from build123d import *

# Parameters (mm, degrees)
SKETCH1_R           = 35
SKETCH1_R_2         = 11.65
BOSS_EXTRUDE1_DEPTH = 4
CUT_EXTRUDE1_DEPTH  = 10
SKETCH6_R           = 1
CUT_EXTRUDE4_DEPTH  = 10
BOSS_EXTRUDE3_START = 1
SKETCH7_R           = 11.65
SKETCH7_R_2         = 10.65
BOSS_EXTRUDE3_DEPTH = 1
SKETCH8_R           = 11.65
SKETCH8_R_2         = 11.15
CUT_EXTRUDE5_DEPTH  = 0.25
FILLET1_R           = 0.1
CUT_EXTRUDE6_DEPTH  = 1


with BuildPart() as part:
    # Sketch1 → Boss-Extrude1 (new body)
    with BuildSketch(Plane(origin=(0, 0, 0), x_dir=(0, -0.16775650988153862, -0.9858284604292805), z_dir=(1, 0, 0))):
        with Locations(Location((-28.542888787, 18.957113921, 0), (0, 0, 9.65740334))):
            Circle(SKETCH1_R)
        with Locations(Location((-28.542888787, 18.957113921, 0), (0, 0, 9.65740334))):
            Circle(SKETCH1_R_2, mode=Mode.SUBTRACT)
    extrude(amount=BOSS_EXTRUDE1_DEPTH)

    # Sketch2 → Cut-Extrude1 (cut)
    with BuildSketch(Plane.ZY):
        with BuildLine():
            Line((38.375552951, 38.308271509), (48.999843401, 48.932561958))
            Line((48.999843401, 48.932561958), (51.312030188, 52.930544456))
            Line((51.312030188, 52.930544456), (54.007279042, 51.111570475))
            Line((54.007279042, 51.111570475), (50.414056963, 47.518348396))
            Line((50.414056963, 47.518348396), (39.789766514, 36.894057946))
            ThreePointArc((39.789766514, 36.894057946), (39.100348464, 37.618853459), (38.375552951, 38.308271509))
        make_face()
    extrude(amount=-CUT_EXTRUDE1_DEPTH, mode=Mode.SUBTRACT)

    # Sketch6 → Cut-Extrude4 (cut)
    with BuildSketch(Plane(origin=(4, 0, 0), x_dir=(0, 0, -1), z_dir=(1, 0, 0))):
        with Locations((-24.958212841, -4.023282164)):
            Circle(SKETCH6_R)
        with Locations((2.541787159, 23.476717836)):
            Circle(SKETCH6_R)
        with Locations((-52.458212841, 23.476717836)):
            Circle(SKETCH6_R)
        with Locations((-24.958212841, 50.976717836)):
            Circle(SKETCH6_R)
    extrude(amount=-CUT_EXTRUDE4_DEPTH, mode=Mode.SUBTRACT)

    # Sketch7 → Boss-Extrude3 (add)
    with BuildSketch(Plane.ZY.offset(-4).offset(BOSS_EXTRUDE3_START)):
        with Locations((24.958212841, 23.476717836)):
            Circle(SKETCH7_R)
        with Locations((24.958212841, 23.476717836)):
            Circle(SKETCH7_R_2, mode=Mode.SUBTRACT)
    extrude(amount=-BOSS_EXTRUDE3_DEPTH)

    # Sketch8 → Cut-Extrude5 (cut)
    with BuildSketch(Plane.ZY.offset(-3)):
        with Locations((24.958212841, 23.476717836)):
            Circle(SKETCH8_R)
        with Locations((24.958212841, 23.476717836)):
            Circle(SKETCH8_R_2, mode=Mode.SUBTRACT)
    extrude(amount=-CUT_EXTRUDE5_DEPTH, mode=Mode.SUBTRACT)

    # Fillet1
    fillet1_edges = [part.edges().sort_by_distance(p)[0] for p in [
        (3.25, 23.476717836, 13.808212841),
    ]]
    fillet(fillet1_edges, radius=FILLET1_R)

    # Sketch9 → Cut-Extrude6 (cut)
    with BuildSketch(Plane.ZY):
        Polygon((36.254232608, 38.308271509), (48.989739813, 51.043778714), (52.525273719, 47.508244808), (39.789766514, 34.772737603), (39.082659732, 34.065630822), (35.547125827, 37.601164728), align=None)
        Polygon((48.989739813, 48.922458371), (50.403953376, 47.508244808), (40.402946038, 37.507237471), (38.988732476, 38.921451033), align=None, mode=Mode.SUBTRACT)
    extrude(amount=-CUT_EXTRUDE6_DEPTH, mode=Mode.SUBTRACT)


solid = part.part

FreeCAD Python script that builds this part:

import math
import FreeCAD as App
import Part
import Sketcher

V = App.Vector
Q = App.Units.Quantity


def edges_at(feature, points):
    """Names of the edges that pass closest to the given points."""
    edges = feature.Shape.Edges
    near = lambda p: min(range(len(edges)), key=lambda i: edges[i].distToShape(Part.Vertex(*p))[0])
    return sorted({f"Edge{near(p) + 1}" for p in points})

doc = App.newDocument("Part")
body = doc.addObject("PartDesign::Body", "Body")

# Sketch on YZ plane
sketch1 = body.newObject("Sketcher::SketchObject", "Sketch")
sketch1.AttachmentSupport = (doc.getObject("YZ_Plane"), [""])
sketch1.MapMode = "FlatFace"
sketch1.addGeometry([
    Part.Circle(V(23, 25, 0), V(0, 0, 1), 35),
    Part.Circle(V(23, 25, 0), V(0, 0, 1), 12),
], False)
sketch1.addConstraint([
    Sketcher.Constraint("Coincident", 1, 3, 0, 3),
    Sketcher.Constraint("Diameter", 0, Q("70 mm")),
    Sketcher.Constraint("Diameter", 1, Q("23.3 mm")),
    Sketcher.Constraint("DistanceX", -1, 1, 0, 3, Q("23.476718 mm")),
    Sketcher.Constraint("DistanceY", -1, 1, 0, 3, Q("24.958213 mm")),
])
pad1 = body.newObject("PartDesign::Pad", "Pad")
pad1.Profile = sketch1
pad1.Length = 4

# Sketch on YZ plane
sketch2 = body.newObject("Sketcher::SketchObject", "Sketch001")
sketch2.AttachmentSupport = (doc.getObject("YZ_Plane"), [""])
sketch2.MapMode = "FlatFace"
sketch2.addGeometry([
    Part.LineSegment(V(48.9, 49, 0), V(38.3, 38.4, 0)),  # 0
    Part.ArcOfCircle(Part.Circle(V(23.5, 25, 0), V(0, 0, 1), 20), math.radians(42.13), math.radians(47.87)),  # 1
    Part.LineSegment(V(36.9, 39.8, 0), V(47.5, 50.4, 0)),  # 2
    Part.LineSegment(V(47.5, 50.4, 0), V(51.1, 54, 0)),  # 3
    Part.LineSegment(V(51.1, 54, 0), V(52.9, 51.3, 0)),  # 4
    Part.LineSegment(V(52.9, 51.3, 0), V(48.9, 49, 0)),  # 5
], False)
sketch2.addConstraint([
    Sketcher.Constraint("Coincident", 0, 2, 1, 1),
    Sketcher.Constraint("Coincident", 1, 2, 2, 1),
    Sketcher.Constraint("Coincident", 2, 2, 3, 1),
    Sketcher.Constraint("Coincident", 3, 2, 4, 1),
    Sketcher.Constraint("Coincident", 4, 2, 5, 1),
    Sketcher.Constraint("Coincident", 5, 2, 0, 1),
    Sketcher.Constraint("Parallel", 0, 2),
    Sketcher.Constraint("Parallel", 2, 3),
    Sketcher.Constraint("Equal", 0, 2),
    Sketcher.Constraint("Radius", 1, Q("20 mm")),
    Sketcher.Constraint("Angle", 0, Q("-135 deg")),
    Sketcher.Constraint("DistanceX", 0, 2, 3, 2, Q("12.803299 mm")),
    Sketcher.Constraint("Distance", 4, Q("3.25162 mm")),
    Sketcher.Constraint("Distance", 5, Q("4.618449 mm")),
    Sketcher.Constraint("DistanceX", -1, 1, 0, 2, Q("38.308272 mm")),
    Sketcher.Constraint("DistanceX", -1, 1, 2, 2, Q("47.518348 mm")),
    Sketcher.Constraint("DistanceY", -1, 1, 3, 2, Q("54.007279 mm")),
    Sketcher.Constraint("DistanceY", -1, 1, 4, 2, Q("51.31203 mm")),
    Sketcher.Constraint("DistanceX", -1, 1, 5, 2, Q("48.932562 mm")),
])
pocket1 = body.newObject("PartDesign::Pocket", "Pocket")
pocket1.Profile = sketch2
pocket1.Length = 10
pocket1.Reversed = True

# Sketch on YZ plane
sketch3 = body.newObject("Sketcher::SketchObject", "Sketch002")
sketch3.AttachmentSupport = (doc.getObject("YZ_Plane"), [""])
sketch3.MapMode = "FlatFace"
sketch3.AttachmentOffset = App.Placement(V(0, 0, 4), App.Rotation())
sketch3.addGeometry([
    Part.Circle(V(-4, 25, 0), V(0, 0, 1), 1),
    Part.Circle(V(23.5, -2.5, 0), V(0, 0, 1), 1),
    Part.Circle(V(23.5, 52.5, 0), V(0, 0, 1), 1),
    Part.Circle(V(51, 25, 0), V(0, 0, 1), 1),
], False)
sketch3.addConstraint([
    Sketcher.Constraint("Equal", 0, 1),
    Sketcher.Constraint("Equal", 1, 2),
    Sketcher.Constraint("Equal", 2, 3),
    Sketcher.Constraint("Horizontal", 0, 3, 3, 3),
    Sketcher.Constraint("Vertical", 1, 3, 2, 3),
    Sketcher.Constraint("Diameter", 0, Q("2 mm")),
    Sketcher.Constraint("DistanceY", 1, 3, 2, 3, Q("55 mm")),
    Sketcher.Constraint("DistanceX", 0, 3, 3, 3, Q("55 mm")),
    Sketcher.Constraint("DistanceX", 0, 3, 1, 3, Q("27.5 mm")),
    Sketcher.Constraint("DistanceY", 1, 3, 0, 3, Q("27.5 mm")),
    Sketcher.Constraint("DistanceX", 0, 3, -1, 1, Q("4.023282 mm")),
    Sketcher.Constraint("DistanceY", -1, 1, 0, 3, Q("24.958213 mm")),
])
pocket2 = body.newObject("PartDesign::Pocket", "Pocket001")
pocket2.Profile = sketch3
pocket2.Length = 10

# Sketch on YZ plane
sketch4 = body.newObject("Sketcher::SketchObject", "Sketch003")
sketch4.AttachmentSupport = (doc.getObject("YZ_Plane"), [""])
sketch4.MapMode = "FlatFace"
sketch4.AttachmentOffset = App.Placement(V(0, 0, 3), App.Rotation())
sketch4.addGeometry([
    Part.Circle(V(23, 25, 0), V(0, 0, 1), 12),
    Part.Circle(V(23, 25, 0), V(0, 0, 1), 11),
], False)
sketch4.addConstraint([
    Sketcher.Constraint("Coincident", 1, 3, 0, 3),
    Sketcher.Constraint("Diameter", 0, Q("23.3 mm")),
    Sketcher.Constraint("Diameter", 1, Q("21.3 mm")),
    Sketcher.Constraint("DistanceX", -1, 1, 0, 3, Q("23.476718 mm")),
    Sketcher.Constraint("DistanceY", -1, 1, 0, 3, Q("24.958213 mm")),
])
pad2 = body.newObject("PartDesign::Pad", "Pad001")
pad2.Profile = sketch4
pad2.Length = 1

# Sketch on YZ plane
sketch5 = body.newObject("Sketcher::SketchObject", "Sketch004")
sketch5.AttachmentSupport = (doc.getObject("YZ_Plane"), [""])
sketch5.MapMode = "FlatFace"
sketch5.AttachmentOffset = App.Placement(V(0, 0, 3), App.Rotation())
sketch5.addGeometry([
    Part.Circle(V(23, 25, 0), V(0, 0, 1), 12),
    Part.Circle(V(23, 25, 0), V(0, 0, 1), 11),
], False)
sketch5.addConstraint([
    Sketcher.Constraint("Coincident", 1, 3, 0, 3),
    Sketcher.Constraint("Diameter", 0, Q("23.3 mm")),
    Sketcher.Constraint("Diameter", 1, Q("22.3 mm")),
    Sketcher.Constraint("DistanceX", -1, 1, 0, 3, Q("23.476718 mm")),
    Sketcher.Constraint("DistanceY", -1, 1, 0, 3, Q("24.958213 mm")),
])
pocket3 = body.newObject("PartDesign::Pocket", "Pocket002")
pocket3.Profile = sketch5
pocket3.Length = 0.25
pocket3.Reversed = True
doc.recompute()

fillet = body.newObject("PartDesign::Fillet", "Fillet")
fillet.Base = (pocket3, edges_at(pocket3, [(3.25, 23.477, 13.808)]))
fillet.Radius = 0.1

# Sketch on YZ plane
sketch6 = body.newObject("Sketcher::SketchObject", "Sketch005")
sketch6.AttachmentSupport = (doc.getObject("YZ_Plane"), [""])
sketch6.MapMode = "FlatFace"
sketch6.addGeometry([
    Part.LineSegment(V(51, 49, 0), V(37.6, 35.5, 0)),  # 0
    Part.LineSegment(V(37.6, 35.5, 0), V(34.1, 39.1, 0)),  # 1
    Part.LineSegment(V(34.1, 39.1, 0), V(34.8, 39.8, 0)),  # 2
    Part.LineSegment(V(34.8, 39.8, 0), V(47.5, 52.5, 0)),  # 3
    Part.LineSegment(V(47.5, 52.5, 0), V(51, 49, 0)),  # 4
    Part.LineSegment(V(48.9, 49, 0), V(47.5, 50.4, 0)),  # 5
    Part.LineSegment(V(47.5, 50.4, 0), V(37.5, 40.4, 0)),  # 6
    Part.LineSegment(V(37.5, 40.4, 0), V(38.9, 39, 0)),  # 7
    Part.LineSegment(V(38.9, 39, 0), V(48.9, 49, 0)),  # 8
], False)
sketch6.addConstraint([
    Sketcher.Constraint("Coincident", 0, 2, 1, 1),
    Sketcher.Constraint("Coincident", 1, 2, 2, 1),
    Sketcher.Constraint("Coincident", 2, 2, 3, 1),
    Sketcher.Constraint("Coincident", 3, 2, 4, 1),
    Sketcher.Constraint("Coincident", 4, 2, 0, 1),
    Sketcher.Constraint("Coincident", 5, 2, 6, 1),
    Sketcher.Constraint("Coincident", 6, 2, 7, 1),
    Sketcher.Constraint("Coincident", 7, 2, 8, 1),
    Sketcher.Constraint("Coincident", 8, 2, 5, 1),
    Sketcher.Constraint("Perpendicular", 0, 1),
    Sketcher.Constraint("Perpendicular", 1, 2),
    Sketcher.Constraint("Parallel", 2, 3),
    Sketcher.Constraint("Perpendicular", 3, 4),
    Sketcher.Constraint("Parallel", 4, 5),
    Sketcher.Constraint("Perpendicular", 5, 6),
    Sketcher.Constraint("Perpendicular", 6, 7),
    Sketcher.Constraint("Perpendicular", 7, 8),
    Sketcher.Constraint("Horizontal", 4, 2, 8, 2),
    Sketcher.Constraint("Vertical", 3, 2, 5, 2),
    Sketcher.Constraint("Angle", 0, Q("-135 deg")),
    Sketcher.Constraint("Distance", 1, Q("5 mm")),
    Sketcher.Constraint("Distance", 2, Q("1 mm")),
    Sketcher.Constraint("Distance", 5, Q("2 mm")),
    Sketcher.Constraint("DistanceX", 2, 2, 6, 2, Q("2.7345 mm")),
    Sketcher.Constraint("Distance", 6, Q("14.14356 mm")),
    Sketcher.Constraint("DistanceX", -1, 1, 1, 2, Q("34.065631 mm")),
    Sketcher.Constraint("DistanceY", -1, 1, 1, 2, Q("39.08266 mm")),
])
pocket4 = body.newObject("PartDesign::Pocket", "Pocket003")
pocket4.Profile = sketch6
pocket4.Length = 1
pocket4.Reversed = True

doc.recompute()
